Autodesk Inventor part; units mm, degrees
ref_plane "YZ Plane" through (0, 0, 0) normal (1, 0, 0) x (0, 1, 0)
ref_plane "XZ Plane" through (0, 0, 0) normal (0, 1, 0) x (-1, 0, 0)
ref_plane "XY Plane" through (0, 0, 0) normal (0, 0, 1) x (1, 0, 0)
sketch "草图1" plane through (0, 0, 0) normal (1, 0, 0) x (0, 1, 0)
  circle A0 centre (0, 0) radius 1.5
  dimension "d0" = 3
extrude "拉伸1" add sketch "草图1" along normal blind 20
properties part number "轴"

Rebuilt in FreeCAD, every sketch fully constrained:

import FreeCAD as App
import Part
import Sketcher

doc = App.newDocument("Part")
body = doc.addObject("PartDesign::Body", "Body")

# Sketch on YZ plane
sketch1 = body.newObject("Sketcher::SketchObject", "Sketch")
sketch1.AttachmentSupport = (doc.getObject("YZ_Plane"), [""])
sketch1.MapMode = "FlatFace"
sketch1.addGeometry(Part.Circle(App.Vector(0, 0, 0), App.Vector(0, 0, 1), 1.5), False)
sketch1.addConstraint(Sketcher.Constraint("Coincident", 0, 3, -1, 1))
sketch1.addConstraint(Sketcher.Constraint("Diameter", 0, 3.0))
pad1 = body.newObject("PartDesign::Pad", "Pad")
pad1.Profile = sketch1
pad1.Length = 20

doc.recompute()
